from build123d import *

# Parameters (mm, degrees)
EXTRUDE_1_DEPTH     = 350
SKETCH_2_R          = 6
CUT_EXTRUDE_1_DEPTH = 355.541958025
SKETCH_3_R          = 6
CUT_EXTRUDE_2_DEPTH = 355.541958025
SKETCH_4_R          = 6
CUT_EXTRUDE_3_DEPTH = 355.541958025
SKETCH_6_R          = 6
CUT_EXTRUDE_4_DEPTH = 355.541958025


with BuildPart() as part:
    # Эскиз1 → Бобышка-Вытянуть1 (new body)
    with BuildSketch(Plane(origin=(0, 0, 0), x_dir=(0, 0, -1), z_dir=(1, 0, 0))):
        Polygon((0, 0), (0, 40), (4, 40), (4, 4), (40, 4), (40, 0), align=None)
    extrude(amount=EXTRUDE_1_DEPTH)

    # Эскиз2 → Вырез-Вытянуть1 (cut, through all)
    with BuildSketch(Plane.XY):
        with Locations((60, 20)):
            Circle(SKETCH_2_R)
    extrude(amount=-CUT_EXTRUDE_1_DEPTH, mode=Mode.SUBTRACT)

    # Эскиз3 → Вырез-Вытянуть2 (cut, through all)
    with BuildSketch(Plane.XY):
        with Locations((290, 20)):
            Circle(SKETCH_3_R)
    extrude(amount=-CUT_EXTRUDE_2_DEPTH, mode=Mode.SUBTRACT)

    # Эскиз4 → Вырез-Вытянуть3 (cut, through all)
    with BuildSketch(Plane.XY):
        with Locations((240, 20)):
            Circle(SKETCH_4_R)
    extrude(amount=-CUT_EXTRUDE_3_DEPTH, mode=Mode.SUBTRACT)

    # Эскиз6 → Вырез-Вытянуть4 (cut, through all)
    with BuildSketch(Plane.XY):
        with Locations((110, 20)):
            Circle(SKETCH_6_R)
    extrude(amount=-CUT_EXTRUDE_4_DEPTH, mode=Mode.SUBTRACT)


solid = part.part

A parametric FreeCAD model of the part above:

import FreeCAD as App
import Part
import Sketcher

V = App.Vector

doc = App.newDocument("Part")
params = doc.addObject("Spreadsheet::Sheet", "Params")
for row, (alias, value) in enumerate([
    ("sketch1_width", "40 mm"),
    ("sketch1_width2", "4 mm"),
    ("pad1_length", "350 mm"),
    ("sketch2_diameter", "12 mm"),
    ("sketch3_diameter", "12 mm"),
    ("sketch4_diameter", "12 mm"),
    ("sketch5_diameter", "12 mm"),
], start=1):
    params.set(f"A{row}", alias)
    params.set(f"B{row}", "=" + value)
    params.setAlias(f"B{row}", alias)

body = doc.addObject("PartDesign::Body", "Body")

# Sketch on YZ plane
sketch1 = body.newObject("Sketcher::SketchObject", "Sketch")
sketch1.AttachmentSupport = (doc.getObject("YZ_Plane"), [""])
sketch1.MapMode = "FlatFace"
sketch1.addGeometry(Part.LineSegment(V(40, 0, 0), V(0, 0, 0)), False)
sketch1.addGeometry(Part.LineSegment(V(0, 0, 0), V(0, -40, 0)), False)
sketch1.addGeometry(Part.LineSegment(V(0, -40, 0), V(4, -40, 0)), False)
sketch1.addGeometry(Part.LineSegment(V(4, -40, 0), V(4, -4, 0)), False)
sketch1.addGeometry(Part.LineSegment(V(4, -4, 0), V(40, -4, 0)), False)
sketch1.addGeometry(Part.LineSegment(V(40, -4, 0), V(40, 0, 0)), False)
sketch1.addConstraint(Sketcher.Constraint("Coincident", 0, 2, 1, 1))
sketch1.addConstraint(Sketcher.Constraint("Coincident", 1, 2, 2, 1))
sketch1.addConstraint(Sketcher.Constraint("Coincident", 2, 2, 3, 1))
sketch1.addConstraint(Sketcher.Constraint("Coincident", 3, 2, 4, 1))
sketch1.addConstraint(Sketcher.Constraint("Coincident", 4, 2, 5, 1))
sketch1.addConstraint(Sketcher.Constraint("Coincident", 5, 2, 0, 1))
sketch1.addConstraint(Sketcher.Constraint("Horizontal", 0))
sketch1.addConstraint(Sketcher.Constraint("Vertical", 1))
sketch1.addConstraint(Sketcher.Constraint("Horizontal", 2))
sketch1.addConstraint(Sketcher.Constraint("Vertical", 3))
sketch1.addConstraint(Sketcher.Constraint("Horizontal", 4))
sketch1.addConstraint(Sketcher.Constraint("Vertical", 5))
sketch1.addConstraint(Sketcher.Constraint("Coincident", 0, 2, -1, 1))
sketch1.addConstraint(Sketcher.Constraint("Equal", 0, 1))
sketch1.addConstraint(Sketcher.Constraint("Equal", 4, 3))
sketch1.addConstraint(Sketcher.Constraint("DistanceX", 0, 2, 0, 1, 40.0))
sketch1.addConstraint(Sketcher.Constraint("DistanceX", 2, 1, 2, 2, 4.0))
sketch1.setExpression("Constraints[15]", "Params.sketch1_width")
sketch1.setExpression("Constraints[16]", "Params.sketch1_width2")
pad1 = body.newObject("PartDesign::Pad", "Pad")
pad1.Profile = sketch1
pad1.setExpression("Length", "Params.pad1_length")

# Sketch on XY plane
sketch2 = body.newObject("Sketcher::SketchObject", "Sketch001")
sketch2.AttachmentSupport = (doc.getObject("XY_Plane"), [""])
sketch2.MapMode = "FlatFace"
sketch2.addGeometry(Part.Circle(V(60, 20, 0), V(0, 0, 1), 6), False)
sketch2.addConstraint(Sketcher.Constraint("Diameter", 0, 12.0))
sketch2.addConstraint(Sketcher.Constraint("DistanceX", -1, 1, 0, 3, 60.0))
sketch2.addConstraint(Sketcher.Constraint("DistanceY", -1, 1, 0, 3, 20.0))
sketch2.setExpression("Constraints[0]", "Params.sketch2_diameter")
pocket1 = body.newObject("PartDesign::Pocket", "Pocket")
pocket1.Profile = sketch2
pocket1.Type = "ThroughAll"

# Sketch on XY plane
sketch3 = body.newObject("Sketcher::SketchObject", "Sketch002")
sketch3.AttachmentSupport = (doc.getObject("XY_Plane"), [""])
sketch3.MapMode = "FlatFace"
sketch3.addGeometry(Part.Circle(V(290, 20, 0), V(0, 0, 1), 6), False)
sketch3.addConstraint(Sketcher.Constraint("Diameter", 0, 12.0))
sketch3.addConstraint(Sketcher.Constraint("DistanceX", -1, 1, 0, 3, 290.0))
sketch3.addConstraint(Sketcher.Constraint("DistanceY", -1, 1, 0, 3, 20.0))
sketch3.setExpression("Constraints[0]", "Params.sketch3_diameter")
pocket2 = body.newObject("PartDesign::Pocket", "Pocket001")
pocket2.Profile = sketch3
pocket2.Type = "ThroughAll"

# Sketch on XY plane
sketch4 = body.newObject("Sketcher::SketchObject", "Sketch003")
sketch4.AttachmentSupport = (doc.getObject("XY_Plane"), [""])
sketch4.MapMode = "FlatFace"
sketch4.addGeometry(Part.Circle(V(240, 20, 0), V(0, 0, 1), 6), False)
sketch4.addConstraint(Sketcher.Constraint("Diameter", 0, 12.0))
sketch4.addConstraint(Sketcher.Constraint("DistanceX", -1, 1, 0, 3, 240.0))
sketch4.addConstraint(Sketcher.Constraint("DistanceY", -1, 1, 0, 3, 20.0))
sketch4.setExpression("Constraints[0]", "Params.sketch4_diameter")
pocket3 = body.newObject("PartDesign::Pocket", "Pocket002")
pocket3.Profile = sketch4
pocket3.Type = "ThroughAll"

# Sketch on XY plane
sketch5 = body.newObject("Sketcher::SketchObject", "Sketch004")
sketch5.AttachmentSupport = (doc.getObject("XY_Plane"), [""])
sketch5.MapMode = "FlatFace"
sketch5.addGeometry(Part.Circle(V(110, 20, 0), V(0, 0, 1), 6), False)
sketch5.addConstraint(Sketcher.Constraint("Diameter", 0, 12.0))
sketch5.addConstraint(Sketcher.Constraint("DistanceX", -1, 1, 0, 3, 110.0))
sketch5.addConstraint(Sketcher.Constraint("DistanceY", -1, 1, 0, 3, 20.0))
sketch5.setExpression("Constraints[0]", "Params.sketch5_diameter")
pocket4 = body.newObject("PartDesign::Pocket", "Pocket003")
pocket4.Profile = sketch5
pocket4.Type = "ThroughAll"

doc.recompute()
